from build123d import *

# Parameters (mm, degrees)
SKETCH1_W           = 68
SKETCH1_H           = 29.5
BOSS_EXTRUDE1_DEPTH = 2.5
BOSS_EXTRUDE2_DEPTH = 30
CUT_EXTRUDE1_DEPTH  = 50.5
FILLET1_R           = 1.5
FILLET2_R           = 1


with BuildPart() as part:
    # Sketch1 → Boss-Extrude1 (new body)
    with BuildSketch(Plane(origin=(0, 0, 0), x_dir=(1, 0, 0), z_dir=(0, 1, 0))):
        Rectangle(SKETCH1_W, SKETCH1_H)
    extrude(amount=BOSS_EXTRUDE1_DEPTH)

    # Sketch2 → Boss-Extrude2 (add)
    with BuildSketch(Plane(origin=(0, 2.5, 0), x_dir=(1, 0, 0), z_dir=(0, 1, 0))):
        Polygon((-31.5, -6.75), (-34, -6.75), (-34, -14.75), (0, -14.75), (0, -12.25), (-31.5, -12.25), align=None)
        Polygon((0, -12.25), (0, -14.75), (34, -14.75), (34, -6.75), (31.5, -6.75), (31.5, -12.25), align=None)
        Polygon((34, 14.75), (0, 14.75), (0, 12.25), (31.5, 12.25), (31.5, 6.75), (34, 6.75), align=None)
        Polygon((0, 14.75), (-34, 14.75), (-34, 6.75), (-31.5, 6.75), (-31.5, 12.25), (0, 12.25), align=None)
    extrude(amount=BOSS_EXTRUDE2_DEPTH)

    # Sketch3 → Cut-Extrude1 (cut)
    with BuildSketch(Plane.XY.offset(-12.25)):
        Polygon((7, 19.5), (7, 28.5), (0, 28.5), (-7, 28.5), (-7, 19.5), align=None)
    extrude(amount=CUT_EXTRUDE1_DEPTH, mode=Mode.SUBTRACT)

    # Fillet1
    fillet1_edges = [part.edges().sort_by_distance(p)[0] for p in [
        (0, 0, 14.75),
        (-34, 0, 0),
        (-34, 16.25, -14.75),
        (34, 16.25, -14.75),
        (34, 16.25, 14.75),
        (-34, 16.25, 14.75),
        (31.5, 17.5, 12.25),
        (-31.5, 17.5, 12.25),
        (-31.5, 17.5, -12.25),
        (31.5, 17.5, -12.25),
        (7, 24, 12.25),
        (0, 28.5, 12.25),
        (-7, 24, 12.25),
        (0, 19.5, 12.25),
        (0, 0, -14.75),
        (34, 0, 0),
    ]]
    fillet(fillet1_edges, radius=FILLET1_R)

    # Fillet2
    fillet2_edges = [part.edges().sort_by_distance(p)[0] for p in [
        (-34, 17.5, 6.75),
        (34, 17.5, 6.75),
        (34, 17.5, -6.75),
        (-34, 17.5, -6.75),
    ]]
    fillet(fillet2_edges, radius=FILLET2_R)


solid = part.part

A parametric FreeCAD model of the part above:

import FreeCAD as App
import Part
import Sketcher

V = App.Vector


def edges_at(feature, points):
    """Names of the edges that pass closest to the given points."""
    edges = feature.Shape.Edges
    near = lambda p: min(range(len(edges)), key=lambda i: edges[i].distToShape(Part.Vertex(*p))[0])
    return sorted({f"Edge{near(p) + 1}" for p in points})

doc = App.newDocument("Part")
body = doc.addObject("PartDesign::Body", "Body")

# Sketch on XZ plane
sketch1 = body.newObject("Sketcher::SketchObject", "Sketch")
sketch1.AttachmentSupport = (doc.getObject("XZ_Plane"), [""])
sketch1.MapMode = "FlatFace"
sketch1.addGeometry([
    Part.LineSegment(V(-34, -15, 0), V(-34, 15, 0)),
    Part.LineSegment(V(-34, 15, 0), V(34, 15, 0)),
    Part.LineSegment(V(34, 15, 0), V(34, -15, 0)),
    Part.LineSegment(V(34, -15, 0), V(-34, -15, 0)),
], False)
sketch1.addConstraint([
    Sketcher.Constraint("Coincident", 0, 2, 1, 1),
    Sketcher.Constraint("Coincident", 1, 2, 2, 1),
    Sketcher.Constraint("Coincident", 2, 2, 3, 1),
    Sketcher.Constraint("Coincident", 3, 2, 0, 1),
    Sketcher.Constraint("Vertical", 0),
    Sketcher.Constraint("Horizontal", 1),
    Sketcher.Constraint("Vertical", 2),
    Sketcher.Constraint("Horizontal", 3),
    Sketcher.Constraint("Symmetric", 0, 2, 2, 2, -1, 1),
    Sketcher.Constraint("DistanceX", 1, 1, 1, 2, 68.0),
    Sketcher.Constraint("DistanceY", 0, 1, 0, 2, 29.5),
])
pad1 = body.newObject("PartDesign::Pad", "Pad")
pad1.Profile = sketch1
pad1.Length = 2.5
pad1.Reversed = True

# Sketch on XZ plane
sketch2 = body.newObject("Sketcher::SketchObject", "Sketch001")
sketch2.AttachmentSupport = (doc.getObject("XZ_Plane"), [""])
sketch2.MapMode = "FlatFace"
sketch2.AttachmentOffset = App.Placement(V(0, 0, -2.5), App.Rotation())
sketch2.addGeometry([
    Part.LineSegment(V(-31.5, 6.8, 0), V(-34, 6.8, 0)),  # 0
    Part.LineSegment(V(-34, 6.8, 0), V(-34, 14.8, 0)),  # 1
    Part.LineSegment(V(-34, 14.8, 0), V(34, 14.8, 0)),  # 2
    Part.LineSegment(V(34, 14.8, 0), V(34, 6.8, 0)),  # 3
    Part.LineSegment(V(34, 6.8, 0), V(31.5, 6.8, 0)),  # 4
    Part.LineSegment(V(31.5, 6.8, 0), V(31.5, 12.2, 0)),  # 5
    Part.LineSegment(V(31.5, 12.2, 0), V(-31.5, 12.2, 0)),  # 6
    Part.LineSegment(V(-31.5, 12.2, 0), V(-31.5, 6.8, 0)),  # 7
    Part.LineSegment(V(34, -14.8, 0), V(-34, -14.8, 0)),  # 8
    Part.LineSegment(V(-34, -14.8, 0), V(-34, -6.8, 0)),  # 9
    Part.LineSegment(V(-34, -6.8, 0), V(-31.5, -6.8, 0)),  # 10
    Part.LineSegment(V(-31.5, -6.8, 0), V(-31.5, -12.2, 0)),  # 11
    Part.LineSegment(V(-31.5, -12.2, 0), V(31.5, -12.2, 0)),  # 12
    Part.LineSegment(V(31.5, -12.2, 0), V(31.5, -6.8, 0)),  # 13
    Part.LineSegment(V(31.5, -6.8, 0), V(34, -6.8, 0)),  # 14
    Part.LineSegment(V(34, -6.8, 0), V(34, -14.8, 0)),  # 15
], False)
sketch2.addConstraint([
    Sketcher.Constraint("Coincident", 0, 2, 1, 1),
    Sketcher.Constraint("Coincident", 1, 2, 2, 1),
    Sketcher.Constraint("Coincident", 2, 2, 3, 1),
    Sketcher.Constraint("Coincident", 3, 2, 4, 1),
    Sketcher.Constraint("Coincident", 4, 2, 5, 1),
    Sketcher.Constraint("Coincident", 5, 2, 6, 1),
    Sketcher.Constraint("Coincident", 6, 2, 7, 1),
    Sketcher.Constraint("Coincident", 7, 2, 0, 1),
    Sketcher.Constraint("Coincident", 8, 2, 9, 1),
    Sketcher.Constraint("Coincident", 9, 2, 10, 1),
    Sketcher.Constraint("Coincident", 10, 2, 11, 1),
    Sketcher.Constraint("Coincident", 11, 2, 12, 1),
    Sketcher.Constraint("Coincident", 12, 2, 13, 1),
    Sketcher.Constraint("Coincident", 13, 2, 14, 1),
    Sketcher.Constraint("Coincident", 14, 2, 15, 1),
    Sketcher.Constraint("Coincident", 15, 2, 8, 1),
    Sketcher.Constraint("Horizontal", 0),
    Sketcher.Constraint("Vertical", 1),
    Sketcher.Constraint("Horizontal", 2),
    Sketcher.Constraint("Vertical", 3),
    Sketcher.Constraint("Horizontal", 4),
    Sketcher.Constraint("Vertical", 5),
    Sketcher.Constraint("Horizontal", 6),
    Sketcher.Constraint("Vertical", 7),
    Sketcher.Constraint("Horizontal", 8),
    Sketcher.Constraint("Vertical", 9),
    Sketcher.Constraint("Horizontal", 10),
    Sketcher.Constraint("Vertical", 11),
    Sketcher.Constraint("Horizontal", 12),
    Sketcher.Constraint("Vertical", 13),
    Sketcher.Constraint("Horizontal", 14),
    Sketcher.Constraint("Vertical", 15),
    Sketcher.Constraint("Symmetric", 2, 2, 8, 2, -1, 1),
    Sketcher.Constraint("Symmetric", 4, 2, 10, 2, -1, 1),
    Sketcher.Constraint("Symmetric", 6, 2, 12, 2, -1, 1),
    Sketcher.Constraint("Symmetric", 0, 2, 14, 2, -1, 1),
    Sketcher.Constraint("Symmetric", 0, 2, 3, 2, -2),
    Sketcher.Constraint("Vertical", 7, 2, 10, 2),
    Sketcher.Constraint("DistanceX", 2, 1, 2, 2, 68.0),
    Sketcher.Constraint("DistanceX", 6, 2, 6, 1, 63.0),
    Sketcher.Constraint("DistanceY", 1, 1, 1, 2, 8.0),
    Sketcher.Constraint("DistanceY", 5, 1, 5, 2, 5.5),
    Sketcher.Constraint("DistanceY", 8, 2, 6, 2, 27.0),
])
pad2 = body.newObject("PartDesign::Pad", "Pad001")
pad2.Profile = sketch2
pad2.Length = 30
pad2.Reversed = True

# Sketch on XY plane
sketch3 = body.newObject("Sketcher::SketchObject", "Sketch002")
sketch3.AttachmentSupport = (doc.getObject("XY_Plane"), [""])
sketch3.MapMode = "FlatFace"
sketch3.AttachmentOffset = App.Placement(V(0, 0, -12.25), App.Rotation())
sketch3.addGeometry([
    Part.LineSegment(V(7, 20, 0), V(7, 28, 0)),
    Part.LineSegment(V(7, 28, 0), V(-7, 28, 0)),
    Part.LineSegment(V(-7, 28, 0), V(-7, 20, 0)),
    Part.LineSegment(V(-7, 20, 0), V(7, 20, 0)),
], False)
sketch3.addConstraint([
    Sketcher.Constraint("Coincident", 0, 2, 1, 1),
    Sketcher.Constraint("Coincident", 1, 2, 2, 1),
    Sketcher.Constraint("Coincident", 2, 2, 3, 1),
    Sketcher.Constraint("Coincident", 3, 2, 0, 1),
    Sketcher.Constraint("Vertical", 0),
    Sketcher.Constraint("Horizontal", 1),
    Sketcher.Constraint("Vertical", 2),
    Sketcher.Constraint("Horizontal", 3),
    Sketcher.Constraint("DistanceX", 1, 2, 1, 1, 14.0),
    Sketcher.Constraint("DistanceY", 0, 1, 0, 2, 9.0),
    Sketcher.Constraint("DistanceX", -1, 1, 0, 2, 7.0),
    Sketcher.Constraint("DistanceY", -1, 1, 0, 2, 28.5),
])
pocket1 = body.newObject("PartDesign::Pocket", "Pocket")
pocket1.Profile = sketch3
pocket1.Length = 50.5
pocket1.Reversed = True
doc.recompute()

fillet = body.newObject("PartDesign::Fillet", "Fillet")
fillet.Base = (pocket1, edges_at(pocket1, [
    (0, 0, 14.75),
    (-34, 0, 0),
    (-34, 16.25, -14.75),
    (34, 16.25, -14.75),
    (34, 16.25, 14.75),
    (-34, 16.25, 14.75),
    (31.5, 17.5, 12.25),
    (-31.5, 17.5, 12.25),
    (-31.5, 17.5, -12.25),
    (31.5, 17.5, -12.25),
    (7, 24, 12.25),
    (0, 28.5, 12.25),
    (-7, 24, 12.25),
    (0, 19.5, 12.25),
    (0, 0, -14.75),
    (34, 0, 0),
]))
fillet.Radius = 1.5
doc.recompute()

fillet2 = body.newObject("PartDesign::Fillet", "Fillet001")
fillet2.Base = (fillet, edges_at(fillet, [
    (-34, 17.5, 6.75),
    (34, 17.5, 6.75),
    (34, 17.5, -6.75),
    (-34, 17.5, -6.75),
]))
fillet2.Radius = 1

doc.recompute()
